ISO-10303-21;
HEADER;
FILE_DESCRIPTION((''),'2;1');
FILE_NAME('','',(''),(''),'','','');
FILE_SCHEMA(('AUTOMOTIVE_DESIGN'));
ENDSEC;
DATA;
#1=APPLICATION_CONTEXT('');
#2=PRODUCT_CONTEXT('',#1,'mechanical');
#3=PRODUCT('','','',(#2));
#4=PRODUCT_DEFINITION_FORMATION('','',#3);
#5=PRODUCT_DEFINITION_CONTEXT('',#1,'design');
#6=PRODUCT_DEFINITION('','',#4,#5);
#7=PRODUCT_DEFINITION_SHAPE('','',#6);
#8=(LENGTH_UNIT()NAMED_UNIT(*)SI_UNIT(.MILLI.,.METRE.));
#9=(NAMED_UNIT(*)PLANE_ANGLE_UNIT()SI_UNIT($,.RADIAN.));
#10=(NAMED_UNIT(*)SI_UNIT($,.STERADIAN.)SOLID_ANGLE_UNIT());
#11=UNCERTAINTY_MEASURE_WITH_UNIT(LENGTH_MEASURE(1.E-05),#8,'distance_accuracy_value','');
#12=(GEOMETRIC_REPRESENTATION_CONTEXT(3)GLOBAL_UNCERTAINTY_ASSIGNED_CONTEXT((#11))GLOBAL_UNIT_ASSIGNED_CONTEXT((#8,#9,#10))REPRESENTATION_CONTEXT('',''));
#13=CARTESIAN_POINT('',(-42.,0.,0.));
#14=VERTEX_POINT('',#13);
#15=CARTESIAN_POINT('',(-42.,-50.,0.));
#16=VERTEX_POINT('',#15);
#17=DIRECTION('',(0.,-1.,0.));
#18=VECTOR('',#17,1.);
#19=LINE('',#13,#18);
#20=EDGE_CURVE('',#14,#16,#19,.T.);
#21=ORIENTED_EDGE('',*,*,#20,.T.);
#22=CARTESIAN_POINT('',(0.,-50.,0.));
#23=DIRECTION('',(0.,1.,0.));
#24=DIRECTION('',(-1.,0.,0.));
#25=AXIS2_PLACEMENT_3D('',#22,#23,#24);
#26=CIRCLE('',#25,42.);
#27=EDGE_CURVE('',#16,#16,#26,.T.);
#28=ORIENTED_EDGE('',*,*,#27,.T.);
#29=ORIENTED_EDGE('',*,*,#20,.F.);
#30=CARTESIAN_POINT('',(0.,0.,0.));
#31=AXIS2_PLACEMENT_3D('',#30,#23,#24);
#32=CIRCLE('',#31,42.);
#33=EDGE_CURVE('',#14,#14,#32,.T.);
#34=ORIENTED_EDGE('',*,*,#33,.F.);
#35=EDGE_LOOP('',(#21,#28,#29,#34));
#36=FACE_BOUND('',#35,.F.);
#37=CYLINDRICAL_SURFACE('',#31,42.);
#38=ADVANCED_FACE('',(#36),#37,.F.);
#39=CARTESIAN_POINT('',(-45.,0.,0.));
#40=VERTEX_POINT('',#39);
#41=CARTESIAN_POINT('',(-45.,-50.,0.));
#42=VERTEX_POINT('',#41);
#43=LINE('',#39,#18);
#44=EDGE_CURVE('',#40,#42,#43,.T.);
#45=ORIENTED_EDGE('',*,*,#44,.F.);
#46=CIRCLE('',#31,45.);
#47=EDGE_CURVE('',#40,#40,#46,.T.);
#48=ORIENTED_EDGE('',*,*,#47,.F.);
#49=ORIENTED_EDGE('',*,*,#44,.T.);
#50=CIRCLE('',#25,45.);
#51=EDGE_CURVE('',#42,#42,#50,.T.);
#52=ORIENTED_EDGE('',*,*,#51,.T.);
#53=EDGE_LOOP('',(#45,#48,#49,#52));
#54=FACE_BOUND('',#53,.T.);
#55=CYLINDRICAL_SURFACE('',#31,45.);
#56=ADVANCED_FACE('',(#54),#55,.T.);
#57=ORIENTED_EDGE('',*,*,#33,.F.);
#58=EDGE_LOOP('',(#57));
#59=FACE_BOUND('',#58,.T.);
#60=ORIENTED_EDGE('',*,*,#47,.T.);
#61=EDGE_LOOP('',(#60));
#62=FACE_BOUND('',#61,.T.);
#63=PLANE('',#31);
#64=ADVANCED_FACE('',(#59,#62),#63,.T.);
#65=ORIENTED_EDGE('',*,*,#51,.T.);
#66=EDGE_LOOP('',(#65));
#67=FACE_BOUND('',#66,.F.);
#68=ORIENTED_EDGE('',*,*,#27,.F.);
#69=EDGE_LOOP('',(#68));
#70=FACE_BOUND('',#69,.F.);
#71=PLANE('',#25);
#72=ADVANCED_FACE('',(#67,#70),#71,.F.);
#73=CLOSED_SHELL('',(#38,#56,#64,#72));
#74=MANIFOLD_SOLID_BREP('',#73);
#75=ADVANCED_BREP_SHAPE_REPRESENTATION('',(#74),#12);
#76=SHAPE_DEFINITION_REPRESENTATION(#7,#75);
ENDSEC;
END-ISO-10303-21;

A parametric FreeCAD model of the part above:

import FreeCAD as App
import Part
import Sketcher

V = App.Vector
Q = App.Units.Quantity

doc = App.newDocument("Part")
body = doc.addObject("PartDesign::Body", "Body")

# Sketch on XZ plane
sketch1 = body.newObject("Sketcher::SketchObject", "Sketch")
sketch1.AttachmentSupport = (doc.getObject("XZ_Plane"), [""])
sketch1.MapMode = "FlatFace"
sketch1.addGeometry([
    Part.Circle(V(0, 0, 0), V(0, 0, 1), 45),
    Part.Circle(V(0, 0, 0), V(0, 0, 1), 42),
], False)
sketch1.addConstraint([
    Sketcher.Constraint("Coincident", 0, 3, -1, 1),
    Sketcher.Constraint("Coincident", 1, 3, -1, 1),
    Sketcher.Constraint("Diameter", 0, Q("90 mm")),
    Sketcher.Constraint("Diameter", 1, Q("84 mm")),
])
pad1 = body.newObject("PartDesign::Pad", "Pad")
pad1.Profile = sketch1
pad1.Length = 50

doc.recompute()
